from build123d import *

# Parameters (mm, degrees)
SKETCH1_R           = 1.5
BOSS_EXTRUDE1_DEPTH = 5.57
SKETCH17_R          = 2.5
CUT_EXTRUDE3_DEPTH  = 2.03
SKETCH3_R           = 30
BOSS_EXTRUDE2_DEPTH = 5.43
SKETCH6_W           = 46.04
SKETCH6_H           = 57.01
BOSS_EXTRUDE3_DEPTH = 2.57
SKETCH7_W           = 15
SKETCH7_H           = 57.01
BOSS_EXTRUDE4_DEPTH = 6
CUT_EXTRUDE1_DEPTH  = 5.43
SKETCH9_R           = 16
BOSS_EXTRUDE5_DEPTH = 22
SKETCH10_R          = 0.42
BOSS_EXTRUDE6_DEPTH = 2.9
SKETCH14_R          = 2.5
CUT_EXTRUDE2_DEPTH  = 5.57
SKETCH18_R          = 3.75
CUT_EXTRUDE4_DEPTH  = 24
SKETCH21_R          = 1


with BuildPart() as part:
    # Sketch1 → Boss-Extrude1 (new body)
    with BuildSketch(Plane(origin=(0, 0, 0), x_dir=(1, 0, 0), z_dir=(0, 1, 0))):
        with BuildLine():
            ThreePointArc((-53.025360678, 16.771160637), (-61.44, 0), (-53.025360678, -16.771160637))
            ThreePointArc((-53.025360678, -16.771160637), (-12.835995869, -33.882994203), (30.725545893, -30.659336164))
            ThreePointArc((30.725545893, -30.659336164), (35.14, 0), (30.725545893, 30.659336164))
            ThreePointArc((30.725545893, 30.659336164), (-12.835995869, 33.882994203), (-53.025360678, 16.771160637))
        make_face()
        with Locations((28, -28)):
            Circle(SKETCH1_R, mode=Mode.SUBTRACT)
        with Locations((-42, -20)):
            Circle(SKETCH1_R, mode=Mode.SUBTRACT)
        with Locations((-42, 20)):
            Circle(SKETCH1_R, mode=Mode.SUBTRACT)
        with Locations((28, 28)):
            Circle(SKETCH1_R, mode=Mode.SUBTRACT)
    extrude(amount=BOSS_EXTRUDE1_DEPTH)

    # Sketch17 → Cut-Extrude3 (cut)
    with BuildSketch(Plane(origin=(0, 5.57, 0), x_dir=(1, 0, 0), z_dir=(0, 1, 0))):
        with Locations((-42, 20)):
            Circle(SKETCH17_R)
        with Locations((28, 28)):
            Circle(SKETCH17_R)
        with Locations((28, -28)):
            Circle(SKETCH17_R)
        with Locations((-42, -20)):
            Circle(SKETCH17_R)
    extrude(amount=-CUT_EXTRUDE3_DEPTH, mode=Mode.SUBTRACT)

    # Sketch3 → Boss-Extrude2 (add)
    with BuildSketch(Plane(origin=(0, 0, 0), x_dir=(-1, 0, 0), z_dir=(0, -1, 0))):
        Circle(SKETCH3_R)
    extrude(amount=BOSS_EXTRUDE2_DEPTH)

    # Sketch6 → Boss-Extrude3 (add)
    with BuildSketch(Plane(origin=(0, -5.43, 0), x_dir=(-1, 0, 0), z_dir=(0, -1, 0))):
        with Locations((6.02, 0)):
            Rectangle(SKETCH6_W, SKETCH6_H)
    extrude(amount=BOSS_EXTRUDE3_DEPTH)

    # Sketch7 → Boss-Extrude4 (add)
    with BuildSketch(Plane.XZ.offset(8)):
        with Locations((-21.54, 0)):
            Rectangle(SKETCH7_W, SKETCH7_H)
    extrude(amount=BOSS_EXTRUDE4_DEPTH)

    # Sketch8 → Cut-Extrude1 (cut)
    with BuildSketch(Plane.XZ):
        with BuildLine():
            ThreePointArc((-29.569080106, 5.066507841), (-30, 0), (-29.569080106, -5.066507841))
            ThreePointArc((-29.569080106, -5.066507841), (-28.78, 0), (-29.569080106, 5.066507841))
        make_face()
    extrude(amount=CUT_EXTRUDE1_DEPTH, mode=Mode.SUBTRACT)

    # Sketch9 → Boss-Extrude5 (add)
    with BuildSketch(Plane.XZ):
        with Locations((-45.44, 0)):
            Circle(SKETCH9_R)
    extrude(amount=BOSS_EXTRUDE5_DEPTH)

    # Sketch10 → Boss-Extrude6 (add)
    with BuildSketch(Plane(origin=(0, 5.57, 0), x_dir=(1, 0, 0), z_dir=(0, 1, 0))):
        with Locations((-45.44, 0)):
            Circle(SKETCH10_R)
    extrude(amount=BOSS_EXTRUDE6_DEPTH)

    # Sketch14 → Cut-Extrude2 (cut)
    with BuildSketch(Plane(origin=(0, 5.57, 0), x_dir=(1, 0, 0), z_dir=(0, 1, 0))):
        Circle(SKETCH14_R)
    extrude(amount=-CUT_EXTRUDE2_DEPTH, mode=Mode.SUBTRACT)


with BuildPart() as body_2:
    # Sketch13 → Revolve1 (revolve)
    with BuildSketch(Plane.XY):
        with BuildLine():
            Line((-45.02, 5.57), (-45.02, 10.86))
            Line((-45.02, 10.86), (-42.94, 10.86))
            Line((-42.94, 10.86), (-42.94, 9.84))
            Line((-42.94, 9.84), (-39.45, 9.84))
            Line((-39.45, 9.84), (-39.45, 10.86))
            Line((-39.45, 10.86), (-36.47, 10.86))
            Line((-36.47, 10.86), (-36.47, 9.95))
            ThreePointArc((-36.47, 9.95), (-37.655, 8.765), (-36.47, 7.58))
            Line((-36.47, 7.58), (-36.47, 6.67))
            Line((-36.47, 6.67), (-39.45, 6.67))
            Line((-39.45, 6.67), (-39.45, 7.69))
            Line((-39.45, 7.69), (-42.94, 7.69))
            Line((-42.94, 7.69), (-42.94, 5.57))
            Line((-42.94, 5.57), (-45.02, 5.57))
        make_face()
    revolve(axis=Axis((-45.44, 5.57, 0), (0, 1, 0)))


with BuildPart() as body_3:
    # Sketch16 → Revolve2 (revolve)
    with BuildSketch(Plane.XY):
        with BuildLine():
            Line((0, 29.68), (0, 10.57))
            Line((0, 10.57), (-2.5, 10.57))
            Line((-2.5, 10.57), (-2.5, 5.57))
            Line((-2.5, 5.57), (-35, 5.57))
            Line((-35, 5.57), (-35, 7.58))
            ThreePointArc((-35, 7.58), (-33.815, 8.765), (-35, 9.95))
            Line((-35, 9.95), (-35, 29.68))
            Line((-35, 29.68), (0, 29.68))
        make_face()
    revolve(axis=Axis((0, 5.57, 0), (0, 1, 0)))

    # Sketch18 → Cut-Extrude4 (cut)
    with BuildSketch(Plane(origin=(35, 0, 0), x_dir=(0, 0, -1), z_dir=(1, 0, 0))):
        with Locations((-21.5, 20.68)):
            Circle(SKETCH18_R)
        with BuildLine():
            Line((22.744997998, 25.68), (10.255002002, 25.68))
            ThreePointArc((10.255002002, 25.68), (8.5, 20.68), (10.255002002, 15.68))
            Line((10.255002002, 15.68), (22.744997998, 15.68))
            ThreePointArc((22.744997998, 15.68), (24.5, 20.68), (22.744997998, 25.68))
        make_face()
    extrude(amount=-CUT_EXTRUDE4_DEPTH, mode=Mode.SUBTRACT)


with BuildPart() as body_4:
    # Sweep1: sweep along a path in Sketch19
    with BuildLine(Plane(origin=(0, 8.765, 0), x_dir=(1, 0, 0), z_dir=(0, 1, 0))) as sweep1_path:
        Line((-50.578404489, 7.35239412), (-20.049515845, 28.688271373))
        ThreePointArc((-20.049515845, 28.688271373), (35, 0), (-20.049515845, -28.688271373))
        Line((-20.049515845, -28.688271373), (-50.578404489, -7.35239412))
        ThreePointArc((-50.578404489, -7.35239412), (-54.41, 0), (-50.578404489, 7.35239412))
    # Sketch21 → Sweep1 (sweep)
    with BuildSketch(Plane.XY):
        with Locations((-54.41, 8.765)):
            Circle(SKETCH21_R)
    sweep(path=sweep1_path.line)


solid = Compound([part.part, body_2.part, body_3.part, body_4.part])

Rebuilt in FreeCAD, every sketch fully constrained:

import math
import FreeCAD as App
import Part
import Sketcher

V = App.Vector

doc = App.newDocument("Part")
body = doc.addObject("PartDesign::Body", "Body")

# Sketch on XZ plane
sketch1 = body.newObject("Sketcher::SketchObject", "Sketch")
sketch1.AttachmentSupport = (doc.getObject("XZ_Plane"), [""])
sketch1.MapMode = "FlatFace"
sketch1.addGeometry([
    Part.ArcOfCircle(Part.Circle(V(-40.5, 0, 0), V(0, 0, 1), 20.9), math.radians(127), math.radians(233)),  # 0
    Part.ArcOfCircle(Part.Circle(V(2.3, -57.4, 0), V(0, 0, 1), 92.6), math.radians(72), math.radians(127)),  # 1
    Part.ArcOfCircle(Part.Circle(V(-73.5, 0, 0), V(0, 0, 1), 108.7), math.radians(-16), math.radians(16)),  # 2
    Part.ArcOfCircle(Part.Circle(V(2.3, 57.4, 0), V(0, 0, 1), 92.6), math.radians(-127), math.radians(-72)),  # 3
    Part.Circle(V(-42, 20, 0), V(0, 0, 1), 1.5),  # 4
    Part.Circle(V(28, 28, 0), V(0, 0, 1), 1.5),  # 5
    Part.Circle(V(-42, -20, 0), V(0, 0, 1), 1.5),  # 6
    Part.Circle(V(28, -28, 0), V(0, 0, 1), 1.5),  # 7
], False)
sketch1.addConstraint([
    Sketcher.Constraint("Tangent", 0, 1, 1, 2),
    Sketcher.Constraint("Coincident", 1, 1, 2, 2),
    Sketcher.Constraint("Coincident", 2, 1, 3, 2),
    Sketcher.Constraint("Tangent", 3, 1, 0, 2),
    Sketcher.Constraint("Equal", 1, 3),
    Sketcher.Constraint("Equal", 4, 5),
    Sketcher.Constraint("Equal", 5, 6),
    Sketcher.Constraint("Equal", 6, 7),
    Sketcher.Constraint("Symmetric", 1, 3, 3, 3, -1),
    Sketcher.Constraint("Symmetric", 4, 3, 6, 3, -1),
    Sketcher.Constraint("Symmetric", 5, 3, 7, 3, -1),
    Sketcher.Constraint("PointOnObject", 2, 3, -1),
    Sketcher.Constraint("Diameter", 4, 3.0),
    Sketcher.Constraint("DistanceX", 4, 3, -1, 1, 42.0),
    Sketcher.Constraint("DistanceY", -1, 1, 4, 3, 20.0),
    Sketcher.Constraint("DistanceX", -1, 1, 5, 3, 28.0),
    Sketcher.Constraint("DistanceY", -1, 1, 5, 3, 28.0),
    Sketcher.Constraint("Radius", 2, 108.675079),
    Sketcher.Constraint("Radius", 0, 20.920563),
    Sketcher.Constraint("Radius", 1, 92.562066),
    Sketcher.Constraint("DistanceX", 2, 3, 1, 3, 75.841601),
    Sketcher.Constraint("DistanceX", -1, 1, 1, 3, 2.306522),
    Sketcher.Constraint("DistanceX", 0, 1, -1, 1, 53.025361),
])
pad1 = body.newObject("PartDesign::Pad", "Pad")
pad1.Profile = sketch1
pad1.Length = 5.57
pad1.Reversed = True

# Sketch on XZ plane
sketch2 = body.newObject("Sketcher::SketchObject", "Sketch001")
sketch2.AttachmentSupport = (doc.getObject("XZ_Plane"), [""])
sketch2.MapMode = "FlatFace"
sketch2.AttachmentOffset = App.Placement(V(0, 0, -5.57), App.Rotation())
sketch2.addGeometry([
    Part.Circle(V(-42, -20, 0), V(0, 0, 1), 2.5),
    Part.Circle(V(28, -28, 0), V(0, 0, 1), 2.5),
    Part.Circle(V(28, 28, 0), V(0, 0, 1), 2.5),
    Part.Circle(V(-42, 20, 0), V(0, 0, 1), 2.5),
], False)
sketch2.addConstraint([
    Sketcher.Constraint("Equal", 0, 1),
    Sketcher.Constraint("Equal", 1, 2),
    Sketcher.Constraint("Equal", 2, 3),
    Sketcher.Constraint("Symmetric", 1, 3, 2, 3, -1),
    Sketcher.Constraint("Symmetric", 0, 3, 3, 3, -1),
    Sketcher.Constraint("Diameter", 0, 5.0),
    Sketcher.Constraint("DistanceX", 0, 3, -1, 1, 42.0),
    Sketcher.Constraint("DistanceY", 0, 3, -1, 1, 20.0),
    Sketcher.Constraint("DistanceX", -1, 1, 1, 3, 28.0),
    Sketcher.Constraint("DistanceY", 1, 3, -1, 1, 28.0),
])
pocket1 = body.newObject("PartDesign::Pocket", "Pocket")
pocket1.Profile = sketch2
pocket1.Length = 2.03
pocket1.Reversed = True

# Sketch on XZ plane
sketch3 = body.newObject("Sketcher::SketchObject", "Sketch002")
sketch3.AttachmentSupport = (doc.getObject("XZ_Plane"), [""])
sketch3.MapMode = "FlatFace"
sketch3.addGeometry(Part.Circle(V(0, 0, 0), V(0, 0, 1), 30), False)
sketch3.addConstraint([
    Sketcher.Constraint("Coincident", 0, 3, -1, 1),
    Sketcher.Constraint("Diameter", 0, 60.0),
])
pad2 = body.newObject("PartDesign::Pad", "Pad001")
pad2.Profile = sketch3
pad2.Length = 5.43

# Sketch on XZ plane
sketch4 = body.newObject("Sketcher::SketchObject", "Sketch003")
sketch4.AttachmentSupport = (doc.getObject("XZ_Plane"), [""])
sketch4.MapMode = "FlatFace"
sketch4.AttachmentOffset = App.Placement(V(0, 0, 5.43), App.Rotation())
sketch4.addGeometry([
    Part.LineSegment(V(17, -29, 0), V(17, 29, 0)),
    Part.LineSegment(V(17, 29, 0), V(-29, 29, 0)),
    Part.LineSegment(V(-29, 29, 0), V(-29, -29, 0)),
    Part.LineSegment(V(-29, -29, 0), V(17, -29, 0)),
], False)
sketch4.addConstraint([
    Sketcher.Constraint("Coincident", 0, 2, 1, 1),
    Sketcher.Constraint("Coincident", 1, 2, 2, 1),
    Sketcher.Constraint("Coincident", 2, 2, 3, 1),
    Sketcher.Constraint("Coincident", 3, 2, 0, 1),
    Sketcher.Constraint("Vertical", 0),
    Sketcher.Constraint("Horizontal", 1),
    Sketcher.Constraint("Vertical", 2),
    Sketcher.Constraint("Horizontal", 3),
    Sketcher.Constraint("DistanceX", -1, 1, 0, 2, 17.0),
    Sketcher.Constraint("DistanceX", 1, 2, 1, 1, 46.04),
    Sketcher.Constraint("DistanceY", 0, 1, 0, 2, 57.01),
    Sketcher.Constraint("DistanceY", -1, 1, 0, 2, 28.505),
])
pad3 = body.newObject("PartDesign::Pad", "Pad002")
pad3.Profile = sketch4
pad3.Length = 2.57

# Sketch on XZ plane
sketch5 = body.newObject("Sketcher::SketchObject", "Sketch004")
sketch5.AttachmentSupport = (doc.getObject("XZ_Plane"), [""])
sketch5.MapMode = "FlatFace"
sketch5.AttachmentOffset = App.Placement(V(0, 0, 8), App.Rotation())
sketch5.addGeometry([
    Part.LineSegment(V(-29, 29, 0), V(-29, -29, 0)),
    Part.LineSegment(V(-29, -29, 0), V(-14, -29, 0)),
    Part.LineSegment(V(-14, -29, 0), V(-14, 29, 0)),
    Part.LineSegment(V(-14, 29, 0), V(-29, 29, 0)),
], False)
sketch5.addConstraint([
    Sketcher.Constraint("Coincident", 0, 2, 1, 1),
    Sketcher.Constraint("Coincident", 1, 2, 2, 1),
    Sketcher.Constraint("Coincident", 2, 2, 3, 1),
    Sketcher.Constraint("Coincident", 3, 2, 0, 1),
    Sketcher.Constraint("Vertical", 0),
    Sketcher.Constraint("Horizontal", 1),
    Sketcher.Constraint("Vertical", 2),
    Sketcher.Constraint("Horizontal", 3),
    Sketcher.Constraint("DistanceX", 1, 1, 1, 2, 15.0),
    Sketcher.Constraint("DistanceY", 0, 2, 0, 1, 57.01),
    Sketcher.Constraint("DistanceX", 0, 2, -1, 1, 29.04),
    Sketcher.Constraint("DistanceY", 0, 2, -1, 1, 28.505),
])
pad4 = body.newObject("PartDesign::Pad", "Pad003")
pad4.Profile = sketch5
pad4.Length = 6

# Sketch on XZ plane
sketch6 = body.newObject("Sketcher::SketchObject", "Sketch005")
sketch6.AttachmentSupport = (doc.getObject("XZ_Plane"), [""])
sketch6.MapMode = "FlatFace"
sketch6.addGeometry([
    Part.ArcOfCircle(Part.Circle(V(0, 0, 0), V(0, 0, 1), 30), math.radians(170.28), math.radians(189.72)),
    Part.ArcOfCircle(Part.Circle(V(-45, 0, 0), V(0, 0, 1), 17), math.radians(-18), math.radians(18)),
], False)
sketch6.addConstraint([
    Sketcher.Constraint("Coincident", 0, 1, 1, 2),
    Sketcher.Constraint("Coincident", 1, 1, 0, 2),
    Sketcher.Constraint("Coincident", 0, 3, -1, 1),
    Sketcher.Constraint("PointOnObject", 1, 3, -1),
    Sketcher.Constraint("Radius", 0, 30.0),
    Sketcher.Constraint("Radius", 1, 16.66),
    Sketcher.Constraint("DistanceX", 1, 3, -1, 1, 45.44),
])
pocket2 = body.newObject("PartDesign::Pocket", "Pocket001")
pocket2.Profile = sketch6
pocket2.Length = 5.43
pocket2.Reversed = True

# Sketch on XZ plane
sketch7 = body.newObject("Sketcher::SketchObject", "Sketch006")
sketch7.AttachmentSupport = (doc.getObject("XZ_Plane"), [""])
sketch7.MapMode = "FlatFace"
sketch7.addGeometry(Part.Circle(V(-45, 0, 0), V(0, 0, 1), 16), False)
sketch7.addConstraint([
    Sketcher.Constraint("PointOnObject", 0, 3, -1),
    Sketcher.Constraint("Diameter", 0, 32.0),
    Sketcher.Constraint("DistanceX", 0, 3, -1, 1, 45.44),
])
pad5 = body.newObject("PartDesign::Pad", "Pad004")
pad5.Profile = sketch7
pad5.Length = 22

# Sketch on XZ plane
sketch8 = body.newObject("Sketcher::SketchObject", "Sketch007")
sketch8.AttachmentSupport = (doc.getObject("XZ_Plane"), [""])
sketch8.MapMode = "FlatFace"
sketch8.AttachmentOffset = App.Placement(V(0, 0, -5.57), App.Rotation())
sketch8.addGeometry(Part.Circle(V(-45.44, 0, 0), V(0, 0, 1), 0.42), False)
sketch8.addConstraint([
    Sketcher.Constraint("PointOnObject", 0, 3, -1),
    Sketcher.Constraint("Diameter", 0, 0.84),
    Sketcher.Constraint("DistanceX", 0, 3, -1, 1, 45.44),
])
pad6 = body.newObject("PartDesign::Pad", "Pad005")
pad6.Profile = sketch8
pad6.Length = 2.9
pad6.Reversed = True

# Sketch on XZ plane
sketch9 = body.newObject("Sketcher::SketchObject", "Sketch008")
sketch9.AttachmentSupport = (doc.getObject("XZ_Plane"), [""])
sketch9.MapMode = "FlatFace"
sketch9.AttachmentOffset = App.Placement(V(0, 0, -5.57), App.Rotation())
sketch9.addGeometry(Part.Circle(V(0, 0, 0), V(0, 0, 1), 2.5), False)
sketch9.addConstraint([
    Sketcher.Constraint("Coincident", 0, 3, -1, 1),
    Sketcher.Constraint("Diameter", 0, 5.0),
])
pocket3 = body.newObject("PartDesign::Pocket", "Pocket002")
pocket3.Profile = sketch9
pocket3.Length = 5.57
pocket3.Reversed = True
body2 = doc.addObject("PartDesign::Body", "Body001")

# Sketch on XY plane
sketch10 = body2.newObject("Sketcher::SketchObject", "Sketch009")
sketch10.AttachmentSupport = (doc.getObject("XY_Plane001"), [""])
sketch10.MapMode = "FlatFace"
sketch10.addGeometry([
    Part.LineSegment(V(-45, 10.9, 0), V(-45, 5.6, 0)),  # 0
    Part.LineSegment(V(-45, 5.6, 0), V(-42.9, 5.6, 0)),  # 1
    Part.LineSegment(V(-42.9, 5.6, 0), V(-42.9, 7.7, 0)),  # 2
    Part.LineSegment(V(-42.9, 7.7, 0), V(-39.5, 7.7, 0)),  # 3
    Part.LineSegment(V(-39.5, 7.7, 0), V(-39.5, 6.7, 0)),  # 4
    Part.LineSegment(V(-39.5, 6.7, 0), V(-36.5, 6.7, 0)),  # 5
    Part.LineSegment(V(-36.5, 6.7, 0), V(-36.5, 7.6, 0)),  # 6
    Part.ArcOfCircle(Part.Circle(V(-36.5, 8.8, 0), V(0, 0, 1), 1.2), math.radians(90), math.radians(270)),  # 7
    Part.LineSegment(V(-36.5, 9.9, 0), V(-36.5, 10.9, 0)),  # 8
    Part.LineSegment(V(-36.5, 10.9, 0), V(-39.5, 10.9, 0)),  # 9
    Part.LineSegment(V(-39.5, 10.9, 0), V(-39.5, 9.8, 0)),  # 10
    Part.LineSegment(V(-39.5, 9.8, 0), V(-42.9, 9.8, 0)),  # 11
    Part.LineSegment(V(-42.9, 9.8, 0), V(-42.9, 10.9, 0)),  # 12
    Part.LineSegment(V(-42.9, 10.9, 0), V(-45, 10.9, 0)),  # 13
], False)
sketch10.addGeometry(Part.LineSegment(V(-45.4, 5.6, 0), V(-45.4, 10.9, 0)), True)  # axis
sketch10.addConstraint([
    Sketcher.Constraint("Coincident", 0, 2, 1, 1),
    Sketcher.Constraint("Coincident", 1, 2, 2, 1),
    Sketcher.Constraint("Coincident", 2, 2, 3, 1),
    Sketcher.Constraint("Coincident", 3, 2, 4, 1),
    Sketcher.Constraint("Coincident", 4, 2, 5, 1),
    Sketcher.Constraint("Coincident", 5, 2, 6, 1),
    Sketcher.Constraint("Coincident", 6, 2, 7, 2),
    Sketcher.Constraint("Coincident", 7, 1, 8, 1),
    Sketcher.Constraint("Coincident", 8, 2, 9, 1),
    Sketcher.Constraint("Coincident", 9, 2, 10, 1),
    Sketcher.Constraint("Coincident", 10, 2, 11, 1),
    Sketcher.Constraint("Coincident", 11, 2, 12, 1),
    Sketcher.Constraint("Coincident", 12, 2, 13, 1),
    Sketcher.Constraint("Coincident", 13, 2, 0, 1),
    Sketcher.Constraint("Vertical", 0),
    Sketcher.Constraint("Horizontal", 1),
    Sketcher.Constraint("Vertical", 2),
    Sketcher.Constraint("Horizontal", 3),
    Sketcher.Constraint("Vertical", 4),
    Sketcher.Constraint("Horizontal", 5),
    Sketcher.Constraint("Vertical", 6),
    Sketcher.Constraint("Vertical", 8),
    Sketcher.Constraint("Horizontal", 9),
    Sketcher.Constraint("Vertical", 10),
    Sketcher.Constraint("Horizontal", 11),
    Sketcher.Constraint("Vertical", 12),
    Sketcher.Constraint("Horizontal", 13),
    Sketcher.Constraint("Vertical", 14),
    Sketcher.Constraint("Horizontal", 9, 2, 12, 2),
    Sketcher.Constraint("Horizontal", 1, 2, 14, 1),
    Sketcher.Constraint("Horizontal", 13, 2, 14, 2),
    Sketcher.Constraint("Vertical", 7, 3, 5, 2),
    Sketcher.Constraint("Vertical", 6, 2, 7, 1),
    Sketcher.Constraint("Vertical", 4, 2, 9, 2),
    Sketcher.Constraint("Vertical", 2, 2, 11, 2),
    Sketcher.Constraint("Equal", 6, 8),
    Sketcher.Constraint("Equal", 4, 10),
    Sketcher.Constraint("Radius", 7, 1.185),
    Sketcher.Constraint("DistanceX", 1, 1, 1, 2, 2.08),
    Sketcher.Constraint("DistanceX", 3, 1, 3, 2, 3.49),
    Sketcher.Constraint("DistanceX", 5, 1, 5, 2, 2.98),
    Sketcher.Constraint("DistanceY", 0, 2, 0, 1, 5.29),
    Sketcher.Constraint("DistanceY", 2, 1, 2, 2, 2.12),
    Sketcher.Constraint("DistanceY", 4, 2, 4, 1, 1.02),
    Sketcher.Constraint("DistanceX", 14, 1, 1, 2, 2.5),
    Sketcher.Constraint("DistanceX", 7, 3, -1, 1, 36.47),
    Sketcher.Constraint("DistanceY", -1, 1, 0, 2, 5.57),
])
revolution = body2.newObject("PartDesign::Revolution", "Revolution")
revolution.Profile = sketch10
revolution.ReferenceAxis = (sketch10, ["Axis0"])
revolution.Angle = 360
body3 = doc.addObject("PartDesign::Body", "Body002")

# Sketch on XY plane
sketch11 = body3.newObject("Sketcher::SketchObject", "Sketch010")
sketch11.AttachmentSupport = (doc.getObject("XY_Plane002"), [""])
sketch11.MapMode = "FlatFace"
sketch11.addGeometry([
    Part.LineSegment(V(0, 10.6, 0), V(0, 29.7, 0)),  # 0
    Part.LineSegment(V(0, 29.7, 0), V(-35, 29.7, 0)),  # 1
    Part.LineSegment(V(-35, 29.7, 0), V(-35, 9.9, 0)),  # 2
    Part.ArcOfCircle(Part.Circle(V(-35, 8.8, 0), V(0, 0, 1), 1.2), math.radians(-90), math.radians(90)),  # 3
    Part.LineSegment(V(-35, 7.6, 0), V(-35, 5.6, 0)),  # 4
    Part.LineSegment(V(-35, 5.6, 0), V(-2.5, 5.6, 0)),  # 5
    Part.LineSegment(V(-2.5, 5.6, 0), V(-2.5, 10.6, 0)),  # 6
    Part.LineSegment(V(-2.5, 10.6, 0), V(0, 10.6, 0)),  # 7
], False)
sketch11.addConstraint([
    Sketcher.Constraint("Coincident", 0, 2, 1, 1),
    Sketcher.Constraint("Coincident", 1, 2, 2, 1),
    Sketcher.Constraint("Coincident", 2, 2, 3, 2),
    Sketcher.Constraint("Coincident", 3, 1, 4, 1),
    Sketcher.Constraint("Coincident", 4, 2, 5, 1),
    Sketcher.Constraint("Coincident", 5, 2, 6, 1),
    Sketcher.Constraint("Coincident", 6, 2, 7, 1),
    Sketcher.Constraint("Coincident", 7, 2, 0, 1),
    Sketcher.Constraint("Vertical", 0),
    Sketcher.Constraint("Horizontal", 1),
    Sketcher.Constraint("Vertical", 2),
    Sketcher.Constraint("Vertical", 4),
    Sketcher.Constraint("Horizontal", 5),
    Sketcher.Constraint("Vertical", 6),
    Sketcher.Constraint("Horizontal", 7),
    Sketcher.Constraint("PointOnObject", 0, 2, -2),
    Sketcher.Constraint("Vertical", 3, 3, 1, 2),
    Sketcher.Constraint("Vertical", 2, 2, 3, 1),
    Sketcher.Constraint("DistanceX", 1, 2, 1, 1, 35.0),
    Sketcher.Constraint("DistanceY", 6, 1, 6, 2, 5.0),
    Sketcher.Constraint("DistanceX", 5, 1, 5, 2, 32.5),
    Sketcher.Constraint("Radius", 3, 1.185),
    Sketcher.Constraint("DistanceY", 0, 1, 0, 2, 19.11),
    Sketcher.Constraint("DistanceY", 2, 2, 2, 1, 19.73),
    Sketcher.Constraint("DistanceY", -1, 1, 0, 2, 29.68),
])
revolution2 = body3.newObject("PartDesign::Revolution", "Revolution001")
revolution2.Profile = sketch11
revolution2.ReferenceAxis = (sketch11, ["V_Axis"])
revolution2.Angle = 360

# Sketch on YZ plane
sketch12 = body3.newObject("Sketcher::SketchObject", "Sketch011")
sketch12.AttachmentSupport = (doc.getObject("YZ_Plane002"), [""])
sketch12.MapMode = "FlatFace"
sketch12.AttachmentOffset = App.Placement(V(0, 0, 35), App.Rotation())
sketch12.addGeometry([
    Part.Circle(V(20.7, 21.5, 0), V(0, 0, 1), 3.8),  # 0
    Part.LineSegment(V(25.7, -22.7, 0), V(25.7, -10.3, 0)),  # 1
    Part.ArcOfCircle(Part.Circle(V(20.7, -16.5, 0), V(0, 0, 1), 8), math.radians(51), math.radians(129)),  # 2
    Part.LineSegment(V(15.7, -10.3, 0), V(15.7, -22.7, 0)),  # 3
    Part.ArcOfCircle(Part.Circle(V(20.7, -16.5, 0), V(0, 0, 1), 8), math.radians(-129), math.radians(-51)),  # 4
], False)
sketch12.addConstraint([
    Sketcher.Constraint("Coincident", 1, 2, 2, 1),
    Sketcher.Constraint("Coincident", 2, 2, 3, 1),
    Sketcher.Constraint("Coincident", 3, 2, 4, 1),
    Sketcher.Constraint("Coincident", 4, 2, 1, 1),
    Sketcher.Constraint("Vertical", 1),
    Sketcher.Constraint("Vertical", 3),
    Sketcher.Constraint("Coincident", 4, 3, 2, 3),
    Sketcher.Constraint("Equal", 2, 4),
    Sketcher.Constraint("Horizontal", 1, 2, 2, 2),
    Sketcher.Constraint("Vertical", 0, 3, 2, 3),
    Sketcher.Constraint("Radius", 2, 8.0),
    Sketcher.Constraint("Diameter", 0, 7.5),
    Sketcher.Constraint("DistanceY", 2, 3, 0, 3, 38.0),
    Sketcher.Constraint("DistanceX", 2, 3, 1, 2, 5.0),
    Sketcher.Constraint("DistanceY", -1, 1, 0, 3, 21.5),
    Sketcher.Constraint("DistanceX", -1, 1, 0, 3, 20.68),
])
pocket4 = body3.newObject("PartDesign::Pocket", "Pocket003")
pocket4.Profile = sketch12
pocket4.Length = 24
body4 = doc.addObject("PartDesign::Body", "Body003")

# Sketch on XY plane
sketch13 = body4.newObject("Sketcher::SketchObject", "Sketch012")
sketch13.AttachmentSupport = (doc.getObject("XY_Plane003"), [""])
sketch13.MapMode = "FlatFace"
sketch13.addGeometry(Part.Circle(V(-54.4, 8.8, 0), V(0, 0, 1), 1), False)
sketch13.addConstraint([
    Sketcher.Constraint("Diameter", 0, 2.0),
    Sketcher.Constraint("DistanceX", 0, 3, -1, 1, 54.41),
    Sketcher.Constraint("DistanceY", -1, 1, 0, 3, 8.765),
])

# Sketch on XZ plane
sketch14 = body4.newObject("Sketcher::SketchObject", "Sketch013")
sketch14.AttachmentSupport = (doc.getObject("XZ_Plane003"), [""])
sketch14.MapMode = "FlatFace"
sketch14.AttachmentOffset = App.Placement(V(0, 0, -8.765), App.Rotation())
sketch14.addGeometry([
    Part.LineSegment(V(-51, -7, 0), V(-20, -29, 0)),
    Part.ArcOfCircle(Part.Circle(V(0, 0, 0), V(0, 0, 1), 35), math.radians(-125), math.radians(125)),
    Part.LineSegment(V(-20, 29, 0), V(-51, 7, 0)),
    Part.ArcOfCircle(Part.Circle(V(-45, 0, 0), V(0, 0, 1), 9), math.radians(125), math.radians(235)),
], False)
sketch14.addConstraint([
    Sketcher.Constraint("Tangent", 0, 2, 1, 1),
    Sketcher.Constraint("Tangent", 1, 2, 2, 1),
    Sketcher.Constraint("Tangent", 2, 2, 3, 1),
    Sketcher.Constraint("Tangent", 3, 2, 0, 1),
    Sketcher.Constraint("Coincident", 1, 3, -1, 1),
    Sketcher.Constraint("PointOnObject", 3, 3, -1),
    Sketcher.Constraint("Radius", 1, 35.0),
    Sketcher.Constraint("Radius", 3, 8.97),
    Sketcher.Constraint("DistanceX", 3, 3, -1, 1, 45.44),
])
doc.recompute()

additivepipe = body4.newObject("PartDesign::AdditivePipe", "AdditivePipe")
additivepipe.Profile = sketch13
additivepipe.Spine = (sketch14, ["Edge1", "Edge2", "Edge3", "Edge4"])

doc.recompute()
